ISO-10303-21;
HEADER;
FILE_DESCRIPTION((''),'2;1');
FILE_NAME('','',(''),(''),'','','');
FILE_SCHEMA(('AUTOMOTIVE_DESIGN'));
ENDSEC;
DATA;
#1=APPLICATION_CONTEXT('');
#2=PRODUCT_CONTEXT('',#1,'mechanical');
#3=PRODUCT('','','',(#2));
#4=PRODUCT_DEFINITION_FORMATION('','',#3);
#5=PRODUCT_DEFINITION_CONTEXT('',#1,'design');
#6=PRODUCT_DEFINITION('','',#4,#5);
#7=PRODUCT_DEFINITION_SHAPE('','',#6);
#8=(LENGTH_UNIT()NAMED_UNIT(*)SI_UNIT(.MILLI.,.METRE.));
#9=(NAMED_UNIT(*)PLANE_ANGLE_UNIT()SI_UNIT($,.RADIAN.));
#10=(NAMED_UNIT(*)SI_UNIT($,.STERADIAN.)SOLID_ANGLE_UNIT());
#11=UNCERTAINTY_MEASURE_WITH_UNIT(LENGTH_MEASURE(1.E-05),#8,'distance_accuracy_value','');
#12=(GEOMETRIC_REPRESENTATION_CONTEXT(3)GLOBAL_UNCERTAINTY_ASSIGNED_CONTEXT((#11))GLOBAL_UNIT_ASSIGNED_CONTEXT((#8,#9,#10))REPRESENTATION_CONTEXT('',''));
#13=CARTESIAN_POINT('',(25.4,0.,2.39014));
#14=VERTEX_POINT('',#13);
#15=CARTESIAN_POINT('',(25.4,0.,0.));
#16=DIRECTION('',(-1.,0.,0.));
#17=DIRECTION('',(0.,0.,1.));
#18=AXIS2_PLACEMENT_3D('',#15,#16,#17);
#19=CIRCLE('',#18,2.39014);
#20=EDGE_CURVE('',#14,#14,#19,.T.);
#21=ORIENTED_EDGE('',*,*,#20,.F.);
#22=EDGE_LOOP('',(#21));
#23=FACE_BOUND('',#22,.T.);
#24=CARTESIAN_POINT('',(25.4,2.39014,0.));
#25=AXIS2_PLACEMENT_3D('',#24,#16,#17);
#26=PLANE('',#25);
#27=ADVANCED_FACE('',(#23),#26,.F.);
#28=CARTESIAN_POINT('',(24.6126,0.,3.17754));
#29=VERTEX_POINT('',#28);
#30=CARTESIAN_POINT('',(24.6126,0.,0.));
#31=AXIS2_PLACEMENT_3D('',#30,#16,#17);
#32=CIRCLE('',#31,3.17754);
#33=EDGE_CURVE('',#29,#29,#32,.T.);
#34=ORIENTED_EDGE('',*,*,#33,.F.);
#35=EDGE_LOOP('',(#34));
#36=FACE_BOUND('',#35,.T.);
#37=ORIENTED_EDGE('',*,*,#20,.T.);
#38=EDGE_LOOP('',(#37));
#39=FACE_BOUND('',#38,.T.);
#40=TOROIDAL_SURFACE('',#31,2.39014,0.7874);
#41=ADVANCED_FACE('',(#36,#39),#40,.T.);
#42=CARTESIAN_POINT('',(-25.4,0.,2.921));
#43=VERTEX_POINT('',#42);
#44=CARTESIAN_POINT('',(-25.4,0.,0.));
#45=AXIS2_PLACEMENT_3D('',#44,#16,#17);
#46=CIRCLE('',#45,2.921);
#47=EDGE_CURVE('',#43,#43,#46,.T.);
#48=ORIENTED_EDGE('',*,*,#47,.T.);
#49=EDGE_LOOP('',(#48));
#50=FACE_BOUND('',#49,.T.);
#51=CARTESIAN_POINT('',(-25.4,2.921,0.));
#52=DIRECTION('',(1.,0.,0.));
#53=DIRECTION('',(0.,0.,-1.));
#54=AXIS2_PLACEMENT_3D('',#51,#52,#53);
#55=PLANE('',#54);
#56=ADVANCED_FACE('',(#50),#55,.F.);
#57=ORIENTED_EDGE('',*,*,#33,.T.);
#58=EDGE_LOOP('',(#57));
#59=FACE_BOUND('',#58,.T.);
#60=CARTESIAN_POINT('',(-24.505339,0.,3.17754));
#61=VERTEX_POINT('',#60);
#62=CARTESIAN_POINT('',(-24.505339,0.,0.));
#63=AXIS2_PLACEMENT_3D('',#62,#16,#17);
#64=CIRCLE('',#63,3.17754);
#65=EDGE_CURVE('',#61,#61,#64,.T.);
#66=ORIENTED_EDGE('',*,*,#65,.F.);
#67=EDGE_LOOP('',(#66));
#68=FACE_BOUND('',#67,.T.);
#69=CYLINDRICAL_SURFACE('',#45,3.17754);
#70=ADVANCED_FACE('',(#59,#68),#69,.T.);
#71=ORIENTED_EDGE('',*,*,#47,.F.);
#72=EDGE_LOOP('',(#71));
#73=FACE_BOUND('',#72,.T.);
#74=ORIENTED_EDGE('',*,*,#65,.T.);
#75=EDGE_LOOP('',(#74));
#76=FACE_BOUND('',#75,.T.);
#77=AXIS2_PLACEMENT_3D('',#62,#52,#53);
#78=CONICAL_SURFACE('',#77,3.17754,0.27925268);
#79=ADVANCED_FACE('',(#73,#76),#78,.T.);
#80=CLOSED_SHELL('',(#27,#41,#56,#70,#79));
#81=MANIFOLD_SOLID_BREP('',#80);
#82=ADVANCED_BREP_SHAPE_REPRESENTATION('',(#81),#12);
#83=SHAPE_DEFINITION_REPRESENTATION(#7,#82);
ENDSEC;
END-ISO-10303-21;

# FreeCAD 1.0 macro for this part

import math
import FreeCAD as App
import Part
import Sketcher
from FreeCAD import Vector
Q = App.Units.Quantity

doc = App.newDocument("Part")
body = doc.addObject("PartDesign::Body", "Body")

# Sketch on XY plane
sketch1 = body.newObject("Sketcher::SketchObject", "Sketch")
sketch1.AttachmentSupport = (doc.getObject("XY_Plane"), [""])
sketch1.MapMode = "FlatFace"
sketch1.addGeometry([
    Part.LineSegment(Vector(25.4, 0, 0), Vector(25.4, 2.4, 0)),  # 0
    Part.ArcOfCircle(Part.Circle(Vector(24.6, 2.4, 0), Vector(0, 0, 1), 0.8), math.radians(0), math.radians(90)),  # 1
    Part.LineSegment(Vector(24.6, 3.2, 0), Vector(-24.5, 3.2, 0)),  # 2
    Part.LineSegment(Vector(-24.5, 3.2, 0), Vector(-25.4, 2.9, 0)),  # 3
    Part.LineSegment(Vector(-25.4, 2.9, 0), Vector(-25.4, 0, 0)),  # 4
    Part.LineSegment(Vector(-25.4, 0, 0), Vector(25.4, 0, 0)),  # 5
], False)
sketch1.addConstraint([
    Sketcher.Constraint("Tangent", 0, 2, 1, 1),
    Sketcher.Constraint("Tangent", 1, 2, 2, 1),
    Sketcher.Constraint("Coincident", 2, 2, 3, 1),
    Sketcher.Constraint("Coincident", 3, 2, 4, 1),
    Sketcher.Constraint("Coincident", 4, 2, 5, 1),
    Sketcher.Constraint("Coincident", 5, 2, 0, 1),
    Sketcher.Constraint("Vertical", 0),
    Sketcher.Constraint("Horizontal", 2),
    Sketcher.Constraint("Vertical", 4),
    Sketcher.Constraint("Horizontal", 5),
    Sketcher.Constraint("Symmetric", 4, 2, 5, 2, -1, 1),
    Sketcher.Constraint("DistanceX", 5, 1, 5, 2, Q("2 in")),
    Sketcher.Constraint("Angle", 3, Q("-164 deg")),
    Sketcher.Constraint("Radius", 1, Q("0.031 in")),
    Sketcher.Constraint("DistanceY", 4, 2, 4, 1, Q("0.115 in")),
    Sketcher.Constraint("DistanceY", 0, 1, 0, 2, Q("0.0941 in")),
])
revolution = body.newObject("PartDesign::Revolution", "Revolution")
revolution.Profile = sketch1
revolution.ReferenceAxis = (sketch1, ["H_Axis"])
revolution.Angle = 360

doc.recompute()
